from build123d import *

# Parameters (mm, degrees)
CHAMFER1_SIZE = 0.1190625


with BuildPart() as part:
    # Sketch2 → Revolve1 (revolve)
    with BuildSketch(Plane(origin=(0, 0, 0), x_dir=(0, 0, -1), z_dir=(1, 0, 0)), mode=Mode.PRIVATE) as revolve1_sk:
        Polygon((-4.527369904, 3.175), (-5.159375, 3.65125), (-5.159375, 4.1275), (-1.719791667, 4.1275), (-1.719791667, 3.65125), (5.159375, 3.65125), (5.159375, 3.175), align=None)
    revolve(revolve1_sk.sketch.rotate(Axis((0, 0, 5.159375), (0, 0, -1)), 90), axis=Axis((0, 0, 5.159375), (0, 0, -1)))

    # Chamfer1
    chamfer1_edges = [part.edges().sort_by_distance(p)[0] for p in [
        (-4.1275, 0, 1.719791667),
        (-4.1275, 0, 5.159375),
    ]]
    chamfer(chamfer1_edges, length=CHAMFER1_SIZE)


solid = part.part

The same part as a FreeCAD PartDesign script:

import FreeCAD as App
import Part
import Sketcher
from FreeCAD import Vector
Q = App.Units.Quantity


def edges_at(feature, points):
    """Names of the edges that pass closest to the given points."""
    edges = feature.Shape.Edges
    near = lambda p: min(range(len(edges)), key=lambda i: edges[i].distToShape(Part.Vertex(*p))[0])
    return sorted({f"Edge{near(p) + 1}" for p in points})

doc = App.newDocument("Part")
body = doc.addObject("PartDesign::Body", "Body")

# Sketch on YZ plane
sketch1 = body.newObject("Sketcher::SketchObject", "Sketch")
sketch1.AttachmentSupport = (doc.getObject("YZ_Plane"), [""])
sketch1.MapMode = "FlatFace"
sketch1.addGeometry(Part.LineSegment(Vector(3.65, 5.16, 0), Vector(3.17, 4.53, 0)), False)
sketch1.addGeometry(Part.LineSegment(Vector(3.17, 4.53, 0), Vector(3.17, -5.16, 0)), False)
sketch1.addGeometry(Part.LineSegment(Vector(3.17, -5.16, 0), Vector(3.65, -5.16, 0)), False)
sketch1.addGeometry(Part.LineSegment(Vector(3.65, -5.16, 0), Vector(3.65, 1.72, 0)), False)
sketch1.addGeometry(Part.LineSegment(Vector(3.65, 1.72, 0), Vector(4.13, 1.72, 0)), False)
sketch1.addGeometry(Part.LineSegment(Vector(4.13, 1.72, 0), Vector(4.13, 5.16, 0)), False)
sketch1.addGeometry(Part.LineSegment(Vector(4.13, 5.16, 0), Vector(3.65, 5.16, 0)), False)
sketch1.addConstraint(Sketcher.Constraint("Coincident", 0, 2, 1, 1))
sketch1.addConstraint(Sketcher.Constraint("Coincident", 1, 2, 2, 1))
sketch1.addConstraint(Sketcher.Constraint("Coincident", 2, 2, 3, 1))
sketch1.addConstraint(Sketcher.Constraint("Coincident", 3, 2, 4, 1))
sketch1.addConstraint(Sketcher.Constraint("Coincident", 4, 2, 5, 1))
sketch1.addConstraint(Sketcher.Constraint("Coincident", 5, 2, 6, 1))
sketch1.addConstraint(Sketcher.Constraint("Coincident", 6, 2, 0, 1))
sketch1.addConstraint(Sketcher.Constraint("Vertical", 1))
sketch1.addConstraint(Sketcher.Constraint("Horizontal", 2))
sketch1.addConstraint(Sketcher.Constraint("Vertical", 3))
sketch1.addConstraint(Sketcher.Constraint("Horizontal", 4))
sketch1.addConstraint(Sketcher.Constraint("Vertical", 5))
sketch1.addConstraint(Sketcher.Constraint("Horizontal", 6))
sketch1.addConstraint(Sketcher.Constraint("Symmetric", 2, 2, 6, 2, -1))
sketch1.addConstraint(Sketcher.Constraint("Equal", 2, 4))
sketch1.addConstraint(Sketcher.Constraint("Angle", 0, Q("-127 deg")))
sketch1.addConstraint(Sketcher.Constraint("DistanceX", -1, 1, 0, 2, Q("3.175 mm")))
sketch1.addConstraint(Sketcher.Constraint("DistanceX", 2, 1, 2, 2, Q("0.47625 mm")))
sketch1.addConstraint(Sketcher.Constraint("DistanceY", 1, 2, 1, 1, Q("9.686745 mm")))
sketch1.addConstraint(Sketcher.Constraint("DistanceY", 3, 1, 3, 2, Q("6.879167 mm")))
revolution = body.newObject("PartDesign::Revolution", "Revolution")
revolution.Profile = sketch1
revolution.ReferenceAxis = (sketch1, ["V_Axis"])
revolution.Angle = 360
doc.recompute()

chamfer = body.newObject("PartDesign::Chamfer", "Chamfer")
chamfer.Base = (revolution, edges_at(revolution, [(-4.128, 0, 1.72), (-4.128, 0, 5.159)]))
chamfer.Size = 0.119063

doc.recompute()
